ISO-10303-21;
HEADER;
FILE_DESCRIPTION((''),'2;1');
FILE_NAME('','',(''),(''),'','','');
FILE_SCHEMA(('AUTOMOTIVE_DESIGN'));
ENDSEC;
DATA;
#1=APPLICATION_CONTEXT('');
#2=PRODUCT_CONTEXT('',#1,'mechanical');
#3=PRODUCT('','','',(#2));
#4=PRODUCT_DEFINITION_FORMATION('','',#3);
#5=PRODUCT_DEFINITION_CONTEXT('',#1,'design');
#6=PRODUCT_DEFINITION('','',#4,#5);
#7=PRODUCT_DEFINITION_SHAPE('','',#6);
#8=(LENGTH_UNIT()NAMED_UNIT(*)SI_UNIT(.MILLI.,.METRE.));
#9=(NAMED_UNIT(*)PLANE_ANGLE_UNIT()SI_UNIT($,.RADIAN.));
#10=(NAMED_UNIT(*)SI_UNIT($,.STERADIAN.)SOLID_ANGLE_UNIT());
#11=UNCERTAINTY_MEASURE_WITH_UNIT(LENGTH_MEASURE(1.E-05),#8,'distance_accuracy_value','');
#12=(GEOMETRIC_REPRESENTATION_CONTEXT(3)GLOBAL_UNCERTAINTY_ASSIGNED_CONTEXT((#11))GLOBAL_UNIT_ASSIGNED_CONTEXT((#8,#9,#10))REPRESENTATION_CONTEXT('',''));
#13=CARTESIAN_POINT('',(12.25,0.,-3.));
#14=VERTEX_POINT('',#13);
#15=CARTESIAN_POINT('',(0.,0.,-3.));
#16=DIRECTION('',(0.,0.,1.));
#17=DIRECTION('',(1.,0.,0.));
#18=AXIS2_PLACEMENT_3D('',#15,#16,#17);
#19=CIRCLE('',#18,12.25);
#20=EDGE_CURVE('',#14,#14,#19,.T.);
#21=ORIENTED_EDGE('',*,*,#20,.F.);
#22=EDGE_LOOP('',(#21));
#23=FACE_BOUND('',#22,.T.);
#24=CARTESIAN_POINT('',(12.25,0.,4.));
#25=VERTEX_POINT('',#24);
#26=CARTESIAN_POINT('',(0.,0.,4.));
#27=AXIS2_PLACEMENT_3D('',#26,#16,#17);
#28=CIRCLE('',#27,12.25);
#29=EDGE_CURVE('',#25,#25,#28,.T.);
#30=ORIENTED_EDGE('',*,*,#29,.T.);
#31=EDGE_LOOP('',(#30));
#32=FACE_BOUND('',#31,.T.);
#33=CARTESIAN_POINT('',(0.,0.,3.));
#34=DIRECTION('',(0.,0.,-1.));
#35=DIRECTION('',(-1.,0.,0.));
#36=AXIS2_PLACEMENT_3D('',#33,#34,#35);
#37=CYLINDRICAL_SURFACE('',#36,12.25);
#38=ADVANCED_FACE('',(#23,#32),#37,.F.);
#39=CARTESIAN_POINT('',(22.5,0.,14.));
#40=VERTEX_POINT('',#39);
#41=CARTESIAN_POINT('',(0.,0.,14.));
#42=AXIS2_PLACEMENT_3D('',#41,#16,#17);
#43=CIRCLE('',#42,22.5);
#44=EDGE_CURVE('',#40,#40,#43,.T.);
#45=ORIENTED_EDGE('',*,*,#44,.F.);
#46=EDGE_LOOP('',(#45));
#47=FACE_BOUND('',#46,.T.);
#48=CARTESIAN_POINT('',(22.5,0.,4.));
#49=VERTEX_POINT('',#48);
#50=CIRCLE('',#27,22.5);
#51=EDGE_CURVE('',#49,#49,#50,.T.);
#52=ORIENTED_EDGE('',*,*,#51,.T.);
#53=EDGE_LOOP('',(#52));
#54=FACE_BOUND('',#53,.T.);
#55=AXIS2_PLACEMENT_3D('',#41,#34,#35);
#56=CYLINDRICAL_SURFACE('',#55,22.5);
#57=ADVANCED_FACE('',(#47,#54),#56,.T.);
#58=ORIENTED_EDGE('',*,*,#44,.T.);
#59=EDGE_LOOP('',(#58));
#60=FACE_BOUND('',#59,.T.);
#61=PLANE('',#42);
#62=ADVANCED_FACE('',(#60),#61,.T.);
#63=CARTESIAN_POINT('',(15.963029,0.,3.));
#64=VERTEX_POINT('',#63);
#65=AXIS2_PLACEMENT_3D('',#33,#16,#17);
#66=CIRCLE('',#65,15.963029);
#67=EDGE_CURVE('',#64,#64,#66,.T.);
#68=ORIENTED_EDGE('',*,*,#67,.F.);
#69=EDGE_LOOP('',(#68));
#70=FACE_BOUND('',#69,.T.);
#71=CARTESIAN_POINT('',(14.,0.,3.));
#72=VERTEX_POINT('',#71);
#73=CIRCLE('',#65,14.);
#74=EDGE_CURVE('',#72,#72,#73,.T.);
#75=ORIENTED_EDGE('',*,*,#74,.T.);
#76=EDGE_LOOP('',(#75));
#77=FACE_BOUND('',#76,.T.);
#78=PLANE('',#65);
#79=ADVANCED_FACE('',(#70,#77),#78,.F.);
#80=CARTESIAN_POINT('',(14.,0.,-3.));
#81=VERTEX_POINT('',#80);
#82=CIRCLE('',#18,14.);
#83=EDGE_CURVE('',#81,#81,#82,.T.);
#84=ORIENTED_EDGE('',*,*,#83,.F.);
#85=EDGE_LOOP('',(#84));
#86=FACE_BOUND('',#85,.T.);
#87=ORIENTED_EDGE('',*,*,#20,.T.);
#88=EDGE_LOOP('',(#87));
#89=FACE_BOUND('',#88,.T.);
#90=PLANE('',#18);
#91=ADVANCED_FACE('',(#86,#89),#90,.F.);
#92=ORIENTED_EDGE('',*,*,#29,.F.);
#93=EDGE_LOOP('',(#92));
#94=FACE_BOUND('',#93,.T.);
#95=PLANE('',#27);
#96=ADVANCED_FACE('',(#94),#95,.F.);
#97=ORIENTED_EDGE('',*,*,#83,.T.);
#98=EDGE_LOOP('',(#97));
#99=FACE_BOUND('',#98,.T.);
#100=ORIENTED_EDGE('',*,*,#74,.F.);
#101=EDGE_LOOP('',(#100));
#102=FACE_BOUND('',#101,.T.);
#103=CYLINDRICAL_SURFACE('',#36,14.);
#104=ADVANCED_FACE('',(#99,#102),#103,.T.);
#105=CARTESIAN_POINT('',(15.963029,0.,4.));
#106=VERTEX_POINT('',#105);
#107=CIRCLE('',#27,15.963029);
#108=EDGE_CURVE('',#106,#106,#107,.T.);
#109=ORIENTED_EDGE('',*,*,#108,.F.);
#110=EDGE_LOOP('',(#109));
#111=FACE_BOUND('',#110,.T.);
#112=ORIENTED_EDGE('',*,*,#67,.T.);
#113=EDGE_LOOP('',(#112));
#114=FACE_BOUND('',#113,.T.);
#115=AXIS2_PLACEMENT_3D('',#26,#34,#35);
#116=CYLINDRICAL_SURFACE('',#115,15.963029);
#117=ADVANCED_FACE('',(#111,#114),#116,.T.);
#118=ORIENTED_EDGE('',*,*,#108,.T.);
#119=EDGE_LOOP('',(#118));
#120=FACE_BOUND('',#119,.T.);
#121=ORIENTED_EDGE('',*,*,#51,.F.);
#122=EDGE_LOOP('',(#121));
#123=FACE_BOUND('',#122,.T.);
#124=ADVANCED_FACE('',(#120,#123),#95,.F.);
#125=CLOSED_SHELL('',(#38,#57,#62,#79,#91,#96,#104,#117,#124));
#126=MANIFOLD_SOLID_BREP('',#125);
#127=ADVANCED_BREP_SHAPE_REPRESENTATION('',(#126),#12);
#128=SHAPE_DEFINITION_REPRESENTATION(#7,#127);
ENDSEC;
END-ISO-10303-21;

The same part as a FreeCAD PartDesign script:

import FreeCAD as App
import Part
import Sketcher

V = App.Vector

doc = App.newDocument("Part")
body = doc.addObject("PartDesign::Body", "Body")

# Sketch on XY plane
sketch1 = doc.addObject("Sketcher::SketchObject", "Sketch")
body.addObject(sketch1)
sketch1.AttachmentSupport = (doc.XY_Plane, [""])
sketch1.MapMode = "FlatFace"
sketch1.addGeometry([
    Part.Circle(V(0, 0, 0), V(0, 0, 1), 14),
    Part.Circle(V(0, 0, 0), V(0, 0, 1), 12.25),
], False)
sketch1.addConstraint([
    Sketcher.Constraint("Coincident", 0, 3, -1, 1),
    Sketcher.Constraint("Coincident", 1, 3, -1, 1),
    Sketcher.Constraint("Diameter", 0, 28.0),
    Sketcher.Constraint("Diameter", 1, 24.5),
])
pad1 = doc.addObject("PartDesign::Pad", "Pad")
body.addObject(pad1)
pad1.Profile = sketch1
pad1.Length = 6
pad1.Midplane = True

# Sketch on XY plane
sketch2 = doc.addObject("Sketcher::SketchObject", "Sketch001")
body.addObject(sketch2)
sketch2.AttachmentSupport = (doc.XY_Plane, [""])
sketch2.MapMode = "FlatFace"
sketch2.AttachmentOffset = App.Placement(V(0, 0, 3), App.Rotation())
sketch2.addGeometry([
    Part.Circle(V(0, 0, 0), V(0, 0, 1), 15.963029),
    Part.Circle(V(0, 0, 0), V(0, 0, 1), 12.25),
], False)
sketch2.addConstraint([
    Sketcher.Constraint("Coincident", 0, 3, -1, 1),
    Sketcher.Constraint("Coincident", 1, 3, -1, 1),
    Sketcher.Constraint("Diameter", 1, 24.5),
    Sketcher.Constraint("Diameter", 0, 31.926059),
])
pad2 = doc.addObject("PartDesign::Pad", "Pad001")
body.addObject(pad2)
pad2.Profile = sketch2
pad2.Length = 1

# Sketch on XY plane
sketch3 = doc.addObject("Sketcher::SketchObject", "Sketch002")
body.addObject(sketch3)
sketch3.AttachmentSupport = (doc.XY_Plane, [""])
sketch3.MapMode = "FlatFace"
sketch3.AttachmentOffset = App.Placement(V(0, 0, 4), App.Rotation())
sketch3.addGeometry(Part.Circle(V(0, 0, 0), V(0, 0, 1), 22.5), False)
sketch3.addConstraint([
    Sketcher.Constraint("Coincident", 0, 3, -1, 1),
    Sketcher.Constraint("Diameter", 0, 45.0),
])
pad3 = doc.addObject("PartDesign::Pad", "Pad002")
body.addObject(pad3)
pad3.Profile = sketch3
pad3.Length = 10

doc.recompute()
